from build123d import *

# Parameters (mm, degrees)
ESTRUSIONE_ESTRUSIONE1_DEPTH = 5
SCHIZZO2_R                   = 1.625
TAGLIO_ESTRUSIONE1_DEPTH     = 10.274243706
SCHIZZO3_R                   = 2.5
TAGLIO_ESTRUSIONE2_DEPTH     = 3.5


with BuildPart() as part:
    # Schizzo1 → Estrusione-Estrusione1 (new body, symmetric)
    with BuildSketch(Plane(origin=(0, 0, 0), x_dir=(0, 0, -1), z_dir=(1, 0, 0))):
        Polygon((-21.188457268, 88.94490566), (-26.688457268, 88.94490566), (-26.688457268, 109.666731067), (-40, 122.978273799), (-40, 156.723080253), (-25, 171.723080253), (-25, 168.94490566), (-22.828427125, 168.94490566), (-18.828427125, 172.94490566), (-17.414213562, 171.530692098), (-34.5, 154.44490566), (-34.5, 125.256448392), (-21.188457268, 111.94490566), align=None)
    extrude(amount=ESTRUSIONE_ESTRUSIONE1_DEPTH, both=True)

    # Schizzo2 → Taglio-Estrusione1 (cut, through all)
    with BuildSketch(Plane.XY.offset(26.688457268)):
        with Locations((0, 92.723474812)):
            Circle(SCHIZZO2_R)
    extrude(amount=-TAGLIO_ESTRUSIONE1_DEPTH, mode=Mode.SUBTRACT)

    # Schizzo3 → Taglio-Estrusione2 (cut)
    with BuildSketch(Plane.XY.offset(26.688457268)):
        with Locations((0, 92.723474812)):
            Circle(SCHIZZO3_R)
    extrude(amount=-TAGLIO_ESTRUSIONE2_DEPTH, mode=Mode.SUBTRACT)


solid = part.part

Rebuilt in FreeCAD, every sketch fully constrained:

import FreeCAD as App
import Part
import Sketcher

V = App.Vector
Q = App.Units.Quantity

doc = App.newDocument("Part")
body = doc.addObject("PartDesign::Body", "Body")

sketch1 = body.newObject("Sketcher::SketchObject", "Sketch")
sketch1.AttachmentSupport = (doc.getObject("YZ_Plane"), [""])
sketch1.MapMode = "FlatFace"
sketch1.addGeometry(Part.LineSegment(V(88.944906, 26.688457, 0), V(88.944906, 21.188457, 0)), False)
sketch1.addGeometry(Part.LineSegment(V(88.944906, 21.188457, 0), V(111.944906, 21.188457, 0)), False)
sketch1.addGeometry(Part.LineSegment(V(111.944906, 21.188457, 0), V(125.256448, 34.5, 0)), False)
sketch1.addGeometry(Part.LineSegment(V(125.256448, 34.5, 0), V(154.444906, 34.5, 0)), False)
sketch1.addGeometry(Part.LineSegment(V(154.444906, 34.5, 0), V(171.530692, 17.414214, 0)), False)
sketch1.addGeometry(Part.LineSegment(V(171.530692, 17.414214, 0), V(172.944906, 18.828427, 0)), False)
sketch1.addGeometry(Part.LineSegment(V(172.944906, 18.828427, 0), V(168.944906, 22.828427, 0)), False)
sketch1.addGeometry(Part.LineSegment(V(168.944906, 22.828427, 0), V(168.944906, 25, 0)), False)
sketch1.addGeometry(Part.LineSegment(V(168.944906, 25, 0), V(171.72308, 25, 0)), False)
sketch1.addGeometry(Part.LineSegment(V(171.72308, 25, 0), V(156.72308, 40, 0)), False)
sketch1.addGeometry(Part.LineSegment(V(156.72308, 40, 0), V(122.978274, 40, 0)), False)
sketch1.addGeometry(Part.LineSegment(V(122.978274, 40, 0), V(109.666731, 26.688457, 0)), False)
sketch1.addGeometry(Part.LineSegment(V(109.666731, 26.688457, 0), V(88.944906, 26.688457, 0)), False)
sketch1.addConstraint(Sketcher.Constraint("Coincident", 0, 2, 1, 1))
sketch1.addConstraint(Sketcher.Constraint("Coincident", 1, 2, 2, 1))
sketch1.addConstraint(Sketcher.Constraint("Coincident", 2, 2, 3, 1))
sketch1.addConstraint(Sketcher.Constraint("Coincident", 3, 2, 4, 1))
sketch1.addConstraint(Sketcher.Constraint("Coincident", 4, 2, 5, 1))
sketch1.addConstraint(Sketcher.Constraint("Coincident", 5, 2, 6, 1))
sketch1.addConstraint(Sketcher.Constraint("Coincident", 6, 2, 7, 1))
sketch1.addConstraint(Sketcher.Constraint("Coincident", 7, 2, 8, 1))
sketch1.addConstraint(Sketcher.Constraint("Coincident", 8, 2, 9, 1))
sketch1.addConstraint(Sketcher.Constraint("Coincident", 9, 2, 10, 1))
sketch1.addConstraint(Sketcher.Constraint("Coincident", 10, 2, 11, 1))
sketch1.addConstraint(Sketcher.Constraint("Coincident", 11, 2, 12, 1))
sketch1.addConstraint(Sketcher.Constraint("Coincident", 12, 2, 0, 1))
sketch1.addConstraint(Sketcher.Constraint("Vertical", 0))
sketch1.addConstraint(Sketcher.Constraint("Horizontal", 1))
sketch1.addConstraint(Sketcher.Constraint("Horizontal", 3))
sketch1.addConstraint(Sketcher.Constraint("Vertical", 7))
sketch1.addConstraint(Sketcher.Constraint("Horizontal", 8))
sketch1.addConstraint(Sketcher.Constraint("Horizontal", 10))
sketch1.addConstraint(Sketcher.Constraint("Horizontal", 12))
sketch1.addConstraint(Sketcher.Constraint("Perpendicular", 2, 4))
sketch1.addConstraint(Sketcher.Constraint("Perpendicular", 4, 5))
sketch1.addConstraint(Sketcher.Constraint("Perpendicular", 5, 6))
sketch1.addConstraint(Sketcher.Constraint("Parallel", 6, 9))
sketch1.addConstraint(Sketcher.Constraint("Perpendicular", 9, 11))
sketch1.addConstraint(Sketcher.Constraint("Equal", 2, 11))
sketch1.addConstraint(Sketcher.Constraint("DistanceX", 1, 1, 1, 2, 23.0))
sketch1.addConstraint(Sketcher.Constraint("Angle", 2, Q("45 deg")))
sketch1.addConstraint(Sketcher.Constraint("Distance", 5, 2.0))
sketch1.addConstraint(Sketcher.Constraint("DistanceY", 0, 2, 0, 1, 5.5))
sketch1.addConstraint(Sketcher.Constraint("DistanceY", -1, 1, 7, 2, 25.0))
sketch1.addConstraint(Sketcher.Constraint("DistanceY", -1, 1, 9, 2, 40.0))
sketch1.addConstraint(Sketcher.Constraint("DistanceX", 1, 2, 5, 2, 61.0))
sketch1.addConstraint(Sketcher.Constraint("DistanceX", 6, 2, 5, 2, 4.0))
sketch1.addConstraint(Sketcher.Constraint("DistanceX", 1, 2, 3, 2, 42.5))
sketch1.addConstraint(Sketcher.Constraint("DistanceX", 3, 1, 3, 2, 29.188457))
sketch1.addConstraint(Sketcher.Constraint("DistanceX", 8, 1, 8, 2, 2.778175))
sketch1.addConstraint(Sketcher.Constraint("DistanceX", 10, 2, 10, 1, 33.744806))
sketch1.addConstraint(Sketcher.Constraint("DistanceX", -1, 1, 2, 2, 125.256448))
pad1 = body.newObject("PartDesign::Pad", "Pad")
pad1.Profile = sketch1
pad1.Length = 10
pad1.Midplane = True

sketch2 = body.newObject("Sketcher::SketchObject", "Sketch001")
sketch2.AttachmentSupport = (doc.getObject("XY_Plane"), [""])
sketch2.MapMode = "FlatFace"
sketch2.AttachmentOffset = App.Placement(V(0, 0, 26.688457), App.Rotation())
sketch2.addGeometry(Part.Circle(V(0, 92.723475, 0), V(0, 0, 1), 1.625), False)
sketch2.addConstraint(Sketcher.Constraint("PointOnObject", 0, 3, -2))
sketch2.addConstraint(Sketcher.Constraint("Diameter", 0, 3.25))
sketch2.addConstraint(Sketcher.Constraint("DistanceY", -1, 1, 0, 3, 92.723475))
pocket1 = body.newObject("PartDesign::Pocket", "Pocket")
pocket1.Profile = sketch2
pocket1.Type = "ThroughAll"

sketch3 = body.newObject("Sketcher::SketchObject", "Sketch002")
sketch3.AttachmentSupport = (doc.getObject("XY_Plane"), [""])
sketch3.MapMode = "FlatFace"
sketch3.AttachmentOffset = App.Placement(V(0, 0, 26.688457), App.Rotation())
sketch3.addGeometry(Part.Circle(V(0, 92.723475, 0), V(0, 0, 1), 2.5), False)
sketch3.addConstraint(Sketcher.Constraint("PointOnObject", 0, 3, -2))
sketch3.addConstraint(Sketcher.Constraint("Diameter", 0, 5.0))
sketch3.addConstraint(Sketcher.Constraint("DistanceY", -1, 1, 0, 3, 92.723475))
pocket2 = body.newObject("PartDesign::Pocket", "Pocket001")
pocket2.Profile = sketch3
pocket2.Length = 3.5

doc.recompute()
